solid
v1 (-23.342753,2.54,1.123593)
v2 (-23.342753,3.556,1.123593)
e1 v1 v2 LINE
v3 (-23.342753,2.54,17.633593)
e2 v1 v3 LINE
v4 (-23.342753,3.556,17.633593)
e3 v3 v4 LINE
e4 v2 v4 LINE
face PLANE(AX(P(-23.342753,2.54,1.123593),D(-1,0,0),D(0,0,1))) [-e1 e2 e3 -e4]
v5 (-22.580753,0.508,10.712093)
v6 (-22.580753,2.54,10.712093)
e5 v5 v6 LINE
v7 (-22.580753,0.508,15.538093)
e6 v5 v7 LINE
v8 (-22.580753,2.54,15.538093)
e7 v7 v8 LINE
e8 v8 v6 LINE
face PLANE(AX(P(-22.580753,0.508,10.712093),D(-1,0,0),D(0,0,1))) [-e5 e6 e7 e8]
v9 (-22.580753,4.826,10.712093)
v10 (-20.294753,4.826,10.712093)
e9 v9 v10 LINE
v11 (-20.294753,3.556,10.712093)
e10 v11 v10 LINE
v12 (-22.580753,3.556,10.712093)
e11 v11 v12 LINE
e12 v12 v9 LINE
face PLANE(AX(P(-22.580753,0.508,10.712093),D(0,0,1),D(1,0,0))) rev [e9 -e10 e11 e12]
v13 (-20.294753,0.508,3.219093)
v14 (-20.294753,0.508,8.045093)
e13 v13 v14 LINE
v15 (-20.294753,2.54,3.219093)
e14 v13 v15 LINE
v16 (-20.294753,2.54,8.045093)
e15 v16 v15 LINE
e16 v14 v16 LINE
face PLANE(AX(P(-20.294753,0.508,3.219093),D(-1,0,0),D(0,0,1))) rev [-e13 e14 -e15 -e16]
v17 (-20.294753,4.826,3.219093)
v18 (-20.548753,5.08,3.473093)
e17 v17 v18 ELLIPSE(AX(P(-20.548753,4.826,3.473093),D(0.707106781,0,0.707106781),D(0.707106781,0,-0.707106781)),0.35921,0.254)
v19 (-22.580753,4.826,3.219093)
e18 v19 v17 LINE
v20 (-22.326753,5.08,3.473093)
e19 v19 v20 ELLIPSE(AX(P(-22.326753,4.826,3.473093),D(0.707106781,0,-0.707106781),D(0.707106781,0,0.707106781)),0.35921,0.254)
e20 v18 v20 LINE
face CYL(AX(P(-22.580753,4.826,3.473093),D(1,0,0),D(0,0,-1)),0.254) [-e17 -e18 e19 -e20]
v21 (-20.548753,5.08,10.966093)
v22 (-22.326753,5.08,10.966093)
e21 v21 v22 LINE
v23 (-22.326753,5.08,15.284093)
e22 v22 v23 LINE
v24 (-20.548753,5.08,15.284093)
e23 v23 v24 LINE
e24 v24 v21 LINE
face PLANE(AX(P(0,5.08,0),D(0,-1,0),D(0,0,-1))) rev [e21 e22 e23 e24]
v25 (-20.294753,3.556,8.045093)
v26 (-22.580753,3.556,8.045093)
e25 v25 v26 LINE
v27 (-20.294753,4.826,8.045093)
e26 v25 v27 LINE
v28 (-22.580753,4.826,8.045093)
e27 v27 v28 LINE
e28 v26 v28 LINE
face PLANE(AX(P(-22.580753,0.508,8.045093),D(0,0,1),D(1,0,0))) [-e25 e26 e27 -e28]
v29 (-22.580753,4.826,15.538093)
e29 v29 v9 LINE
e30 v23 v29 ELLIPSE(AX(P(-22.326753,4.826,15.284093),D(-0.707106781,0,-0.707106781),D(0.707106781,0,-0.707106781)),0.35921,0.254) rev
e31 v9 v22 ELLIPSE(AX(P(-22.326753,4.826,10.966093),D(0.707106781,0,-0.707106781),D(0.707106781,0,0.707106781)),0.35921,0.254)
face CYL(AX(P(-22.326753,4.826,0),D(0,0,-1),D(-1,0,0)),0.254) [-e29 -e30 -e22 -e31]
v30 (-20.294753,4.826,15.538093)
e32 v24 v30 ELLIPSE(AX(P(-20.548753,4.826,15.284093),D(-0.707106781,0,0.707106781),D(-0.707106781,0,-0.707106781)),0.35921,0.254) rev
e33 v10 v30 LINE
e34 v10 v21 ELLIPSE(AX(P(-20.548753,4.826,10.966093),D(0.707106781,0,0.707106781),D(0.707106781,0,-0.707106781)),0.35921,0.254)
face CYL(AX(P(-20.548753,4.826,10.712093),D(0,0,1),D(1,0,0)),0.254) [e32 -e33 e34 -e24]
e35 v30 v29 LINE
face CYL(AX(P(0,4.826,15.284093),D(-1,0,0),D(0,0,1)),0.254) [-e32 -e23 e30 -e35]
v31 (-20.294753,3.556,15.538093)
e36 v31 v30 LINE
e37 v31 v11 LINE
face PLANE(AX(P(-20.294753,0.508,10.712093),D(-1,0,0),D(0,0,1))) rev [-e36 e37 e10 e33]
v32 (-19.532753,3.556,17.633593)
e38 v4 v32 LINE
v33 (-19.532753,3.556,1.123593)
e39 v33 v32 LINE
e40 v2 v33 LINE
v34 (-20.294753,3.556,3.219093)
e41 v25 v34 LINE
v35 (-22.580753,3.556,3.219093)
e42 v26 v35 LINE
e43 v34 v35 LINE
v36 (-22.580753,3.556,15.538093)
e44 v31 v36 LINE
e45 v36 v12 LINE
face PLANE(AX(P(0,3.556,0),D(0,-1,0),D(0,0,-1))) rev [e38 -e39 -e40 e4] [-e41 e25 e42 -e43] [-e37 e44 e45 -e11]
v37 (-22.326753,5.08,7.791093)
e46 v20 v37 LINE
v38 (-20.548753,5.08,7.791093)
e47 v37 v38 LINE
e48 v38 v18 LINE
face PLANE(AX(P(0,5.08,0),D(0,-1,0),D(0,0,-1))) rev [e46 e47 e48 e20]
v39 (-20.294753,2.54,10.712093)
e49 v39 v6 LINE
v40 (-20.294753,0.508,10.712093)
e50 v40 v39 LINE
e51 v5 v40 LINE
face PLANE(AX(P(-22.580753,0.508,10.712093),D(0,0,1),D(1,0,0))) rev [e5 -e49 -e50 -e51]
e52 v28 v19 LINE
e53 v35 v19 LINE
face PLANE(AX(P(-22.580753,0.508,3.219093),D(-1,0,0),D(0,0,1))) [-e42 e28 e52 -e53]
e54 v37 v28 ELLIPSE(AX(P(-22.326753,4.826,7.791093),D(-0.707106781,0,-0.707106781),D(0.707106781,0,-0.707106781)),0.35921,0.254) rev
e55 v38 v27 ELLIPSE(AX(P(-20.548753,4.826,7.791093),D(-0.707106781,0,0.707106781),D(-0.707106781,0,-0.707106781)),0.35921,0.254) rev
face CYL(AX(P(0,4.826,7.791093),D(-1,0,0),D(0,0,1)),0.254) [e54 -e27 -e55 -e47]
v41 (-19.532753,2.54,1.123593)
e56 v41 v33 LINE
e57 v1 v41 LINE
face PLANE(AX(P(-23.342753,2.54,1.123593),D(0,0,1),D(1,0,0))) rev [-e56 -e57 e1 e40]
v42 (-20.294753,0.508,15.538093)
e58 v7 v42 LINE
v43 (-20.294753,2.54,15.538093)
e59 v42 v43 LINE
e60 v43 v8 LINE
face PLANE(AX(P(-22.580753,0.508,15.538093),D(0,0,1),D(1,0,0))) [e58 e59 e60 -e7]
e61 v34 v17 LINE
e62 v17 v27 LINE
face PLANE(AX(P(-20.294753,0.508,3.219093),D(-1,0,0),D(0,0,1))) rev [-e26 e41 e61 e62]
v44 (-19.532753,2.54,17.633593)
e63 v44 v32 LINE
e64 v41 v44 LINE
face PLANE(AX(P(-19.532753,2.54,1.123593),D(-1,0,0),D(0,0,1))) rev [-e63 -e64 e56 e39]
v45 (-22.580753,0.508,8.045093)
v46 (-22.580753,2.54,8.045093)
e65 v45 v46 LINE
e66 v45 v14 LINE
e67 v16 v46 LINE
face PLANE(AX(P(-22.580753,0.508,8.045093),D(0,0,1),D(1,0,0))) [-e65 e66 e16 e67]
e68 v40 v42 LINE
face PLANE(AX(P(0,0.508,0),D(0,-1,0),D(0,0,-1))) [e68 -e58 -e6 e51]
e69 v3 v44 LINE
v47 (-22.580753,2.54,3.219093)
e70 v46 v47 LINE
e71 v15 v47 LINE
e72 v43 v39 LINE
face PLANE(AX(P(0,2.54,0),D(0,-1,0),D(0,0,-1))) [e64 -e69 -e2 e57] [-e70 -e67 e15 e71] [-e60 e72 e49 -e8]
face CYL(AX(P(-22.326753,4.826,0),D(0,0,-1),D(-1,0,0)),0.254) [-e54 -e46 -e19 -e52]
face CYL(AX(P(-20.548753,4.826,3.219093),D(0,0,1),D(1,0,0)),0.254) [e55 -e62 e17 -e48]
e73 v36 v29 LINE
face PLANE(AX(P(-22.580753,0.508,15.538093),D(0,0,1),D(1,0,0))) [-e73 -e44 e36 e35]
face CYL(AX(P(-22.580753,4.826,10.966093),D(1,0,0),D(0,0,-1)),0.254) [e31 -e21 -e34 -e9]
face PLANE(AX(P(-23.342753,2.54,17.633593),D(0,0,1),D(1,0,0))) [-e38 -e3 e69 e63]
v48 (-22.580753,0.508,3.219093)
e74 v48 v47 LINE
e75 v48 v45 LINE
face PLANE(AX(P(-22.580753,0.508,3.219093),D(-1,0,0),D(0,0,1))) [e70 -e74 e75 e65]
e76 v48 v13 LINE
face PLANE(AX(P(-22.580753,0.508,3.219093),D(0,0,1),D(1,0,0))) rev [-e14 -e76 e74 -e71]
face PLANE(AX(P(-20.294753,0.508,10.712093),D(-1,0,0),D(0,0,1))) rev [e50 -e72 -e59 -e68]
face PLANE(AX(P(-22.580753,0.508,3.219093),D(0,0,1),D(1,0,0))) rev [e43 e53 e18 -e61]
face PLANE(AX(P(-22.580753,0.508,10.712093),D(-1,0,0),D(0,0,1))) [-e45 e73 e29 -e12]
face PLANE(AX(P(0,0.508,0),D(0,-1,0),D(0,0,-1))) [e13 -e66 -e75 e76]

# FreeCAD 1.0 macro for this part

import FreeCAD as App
import Part
import Sketcher
Q = App.Units.Quantity


def edges_at(feature, points):
    """Names of the edges that pass closest to the given points."""
    edges = feature.Shape.Edges
    near = lambda p: min(range(len(edges)), key=lambda i: edges[i].distToShape(Part.Vertex(*p))[0])
    return sorted({f"Edge{near(p) + 1}" for p in points})


def add_polygon(sketch, points):
    """Adds a closed chain of lines whose ends are joined by coincident constraints."""
    first, n = sketch.GeometryCount, len(points)
    for a, b in zip(points, points[1:] + points[:1]):
        sketch.addGeometry(Part.LineSegment(App.Vector(*a, 0), App.Vector(*b, 0)), False)
    for i in range(n):
        sketch.addConstraint(Sketcher.Constraint("Coincident", first + i, 2, first + (i + 1) % n, 1))

doc = App.newDocument("Part")
body = doc.addObject("PartDesign::Body", "Body")

# Sketch on XZ plane
sketch1 = doc.addObject("Sketcher::SketchObject", "Sketch")
body.addObject(sketch1)
sketch1.AttachmentSupport = (doc.XZ_Plane, [""])
sketch1.MapMode = "FlatFace"
sketch1.AttachmentOffset = App.Placement(App.Vector(0, 0, -0.12 * 25.4), App.Rotation())
add_polygon(sketch1, [(-23.3, 1.1), (-23.3, 17.6), (-19.5, 17.6), (-19.5, 1.1)])  # lines 0-3
sketch1.addConstraint([
    Sketcher.Constraint("Vertical", 0),
    Sketcher.Constraint("Horizontal", 1),
    Sketcher.Constraint("Vertical", 2),
    Sketcher.Constraint("Horizontal", 3),
    Sketcher.Constraint("DistanceX", 1, 1, 1, 2, Q("0.15 in")),
    Sketcher.Constraint("DistanceY", 0, 1, 0, 2, Q("0.65 in")),
    Sketcher.Constraint("DistanceX", 0, 2, -1, 1, 23.342753),
    Sketcher.Constraint("DistanceY", -1, 1, 0, 2, 17.633593),
])
pad1 = doc.addObject("PartDesign::Pad", "Pad")
body.addObject(pad1)
pad1.Profile = sketch1
pad1.Type = "TwoLengths"
pad1.Length = Q("0.02 in")
pad1.Length2 = Q("0.02 in")
pad1.Reversed = True

# Sketch on XZ plane
sketch2 = doc.addObject("Sketcher::SketchObject", "Sketch001")
body.addObject(sketch2)
sketch2.AttachmentSupport = (doc.XZ_Plane, [""])
sketch2.MapMode = "FlatFace"
sketch2.AttachmentOffset = App.Placement(App.Vector(0, 0, -0.12 * 25.4), App.Rotation())
add_polygon(sketch2, [(-22.6, 3.2), (-22.6, 8), (-20.3, 8), (-20.3, 3.2)])  # lines 0-3
add_polygon(sketch2, [(-22.6, 10.7), (-22.6, 15.5), (-20.3, 15.5), (-20.3, 10.7)])  # lines 4-7
sketch2.addConstraint([
    Sketcher.Constraint("Vertical", 0),
    Sketcher.Constraint("Horizontal", 1),
    Sketcher.Constraint("Vertical", 2),
    Sketcher.Constraint("Horizontal", 3),
    Sketcher.Constraint("Vertical", 4),
    Sketcher.Constraint("Horizontal", 5),
    Sketcher.Constraint("Vertical", 6),
    Sketcher.Constraint("Horizontal", 7),
    Sketcher.Constraint("Vertical", 3, 2, 4, 2),
    Sketcher.Constraint("Vertical", 2, 2, 5, 2),
    Sketcher.Constraint("Equal", 2, 4),
    Sketcher.Constraint("DistanceX", 1, 1, 1, 2, Q("0.09 in")),
    Sketcher.Constraint("DistanceY", 0, 1, 0, 2, Q("0.19 in")),
    Sketcher.Constraint("DistanceY", 0, 2, 4, 2, Q("0.295 in")),
    Sketcher.Constraint("DistanceX", 0, 2, -1, 1, 22.580753),
    Sketcher.Constraint("DistanceY", -1, 1, 0, 2, 8.045093),
])
pad2 = doc.addObject("PartDesign::Pad", "Pad001")
body.addObject(pad2)
pad2.Profile = sketch2
pad2.Type = "TwoLengths"
pad2.Length = Q("0.08 in")
pad2.Length2 = Q("0.1 in")
pad2.Reversed = True
doc.recompute()

fillet = doc.addObject("PartDesign::Fillet", "Fillet")
body.addObject(fillet)
fillet.Base = (pad2, edges_at(pad2, [
    (-21.438, 5.08, 10.712),
    (-20.295, 5.08, 13.125),
    (-22.581, 5.08, 13.125),
    (-21.438, 5.08, 15.538),
    (-21.438, 5.08, 3.219),
    (-20.295, 5.08, 5.632),
    (-22.581, 5.08, 5.632),
    (-21.438, 5.08, 8.045),
]))
fillet.Radius = Q("0.01 in")

doc.recompute()
